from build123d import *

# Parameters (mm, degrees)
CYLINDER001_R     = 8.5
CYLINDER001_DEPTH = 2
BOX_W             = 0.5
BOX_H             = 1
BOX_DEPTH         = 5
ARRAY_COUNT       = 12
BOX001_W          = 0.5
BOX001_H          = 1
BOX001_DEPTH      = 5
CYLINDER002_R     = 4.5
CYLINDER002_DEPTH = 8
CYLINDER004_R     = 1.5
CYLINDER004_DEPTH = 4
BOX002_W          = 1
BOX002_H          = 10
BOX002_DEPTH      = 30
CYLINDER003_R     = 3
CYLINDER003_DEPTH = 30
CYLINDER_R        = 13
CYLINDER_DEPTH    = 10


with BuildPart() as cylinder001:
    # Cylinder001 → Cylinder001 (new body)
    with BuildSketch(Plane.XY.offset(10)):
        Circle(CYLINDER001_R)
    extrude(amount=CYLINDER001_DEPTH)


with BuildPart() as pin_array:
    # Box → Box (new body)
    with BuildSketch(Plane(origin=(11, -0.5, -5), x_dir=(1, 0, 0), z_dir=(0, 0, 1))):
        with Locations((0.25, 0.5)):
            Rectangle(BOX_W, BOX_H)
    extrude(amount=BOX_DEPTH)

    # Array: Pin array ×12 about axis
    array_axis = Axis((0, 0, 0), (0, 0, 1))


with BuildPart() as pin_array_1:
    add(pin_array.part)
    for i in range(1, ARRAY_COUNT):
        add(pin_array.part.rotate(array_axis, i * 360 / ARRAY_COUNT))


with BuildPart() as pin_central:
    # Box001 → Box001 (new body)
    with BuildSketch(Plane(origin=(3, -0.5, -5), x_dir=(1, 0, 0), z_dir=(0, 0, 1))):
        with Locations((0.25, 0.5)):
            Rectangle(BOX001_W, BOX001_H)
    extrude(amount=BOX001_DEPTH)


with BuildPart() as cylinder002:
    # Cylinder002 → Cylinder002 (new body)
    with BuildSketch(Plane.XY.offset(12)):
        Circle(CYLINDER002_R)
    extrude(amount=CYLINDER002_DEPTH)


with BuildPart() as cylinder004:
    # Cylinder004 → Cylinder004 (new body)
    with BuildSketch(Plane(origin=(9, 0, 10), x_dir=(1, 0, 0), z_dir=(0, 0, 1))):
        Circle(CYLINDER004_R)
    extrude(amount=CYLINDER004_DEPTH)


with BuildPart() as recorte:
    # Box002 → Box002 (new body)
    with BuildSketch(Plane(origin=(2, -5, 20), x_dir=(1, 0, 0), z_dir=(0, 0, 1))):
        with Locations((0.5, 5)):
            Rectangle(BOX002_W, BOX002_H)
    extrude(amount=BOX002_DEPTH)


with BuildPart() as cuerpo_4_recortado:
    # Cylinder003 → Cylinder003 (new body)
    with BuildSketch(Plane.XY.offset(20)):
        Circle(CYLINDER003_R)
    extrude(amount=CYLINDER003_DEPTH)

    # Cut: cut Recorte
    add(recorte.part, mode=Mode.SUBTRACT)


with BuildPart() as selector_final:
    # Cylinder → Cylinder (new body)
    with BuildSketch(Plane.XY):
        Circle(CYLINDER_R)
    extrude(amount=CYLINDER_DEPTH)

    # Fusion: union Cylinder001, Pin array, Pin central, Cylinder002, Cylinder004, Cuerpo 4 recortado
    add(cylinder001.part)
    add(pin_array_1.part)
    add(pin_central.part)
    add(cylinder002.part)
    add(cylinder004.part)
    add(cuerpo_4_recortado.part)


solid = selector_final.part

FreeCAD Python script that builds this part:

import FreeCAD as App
import Part
import Sketcher

V = App.Vector
Q = App.Units.Quantity


def add_polygon(sketch, points):
    """Adds a closed chain of lines whose ends are joined by coincident constraints."""
    first, n = sketch.GeometryCount, len(points)
    for a, b in zip(points, points[1:] + points[:1]):
        sketch.addGeometry(Part.LineSegment(App.Vector(*a, 0), App.Vector(*b, 0)), False)
    for i in range(n):
        sketch.addConstraint(Sketcher.Constraint("Coincident", first + i, 2, first + (i + 1) % n, 1))

doc = App.newDocument("Part")
body = doc.addObject("PartDesign::Body", "Body")

sketch1 = body.newObject("Sketcher::SketchObject", "Sketch")
sketch1.AttachmentSupport = (doc.getObject("XY_Plane"), [""])
sketch1.MapMode = "FlatFace"
sketch1.AttachmentOffset = App.Placement(V(0, 0, 10), App.Rotation())
sketch1.addGeometry(Part.Circle(V(0, 0, 0), V(0, 0, 1), 8), False)
sketch1.addConstraint([
    Sketcher.Constraint("Coincident", 0, 3, -1, 1),
    Sketcher.Constraint("Diameter", 0, Q("17 mm")),
])
pad1 = body.newObject("PartDesign::Pad", "Pad")
pad1.Profile = sketch1
pad1.Length = 2
body2 = doc.addObject("PartDesign::Body", "Body001")

sketch2 = body2.newObject("Sketcher::SketchObject", "Sketch001")
sketch2.AttachmentSupport = (doc.getObject("XY_Plane001"), [""])
sketch2.MapMode = "FlatFace"
sketch2.AttachmentOffset = App.Placement(V(0, 0, -5), App.Rotation())
add_polygon(sketch2, [(11, 0.5), (11, -0.5), (11.5, -0.5), (11.5, 0.5)])
sketch2.addConstraint([
    Sketcher.Constraint("Vertical", 0),
    Sketcher.Constraint("Horizontal", 1),
    Sketcher.Constraint("Vertical", 2),
    Sketcher.Constraint("Horizontal", 3),
    Sketcher.Constraint("DistanceY", 0, 2, 0, 1, Q("1 mm")),
    Sketcher.Constraint("DistanceX", 1, 1, 1, 2, Q("0.5 mm")),
    Sketcher.Constraint("DistanceX", -1, 1, 0, 2, Q("11 mm")),
    Sketcher.Constraint("DistanceY", 0, 2, -1, 1, Q("0.5 mm")),
])
pad2 = body2.newObject("PartDesign::Pad", "Pad001")
pad2.Profile = sketch2
pad2.Length = 5
body3 = doc.addObject("PartDesign::Body", "Body002")
body3.AllowCompound = True
doc.recompute()

body3.BaseFeature = body2
doc.recompute()

body4 = doc.addObject("PartDesign::Body", "Body003")
body4.BaseFeature = body2
body4.Placement = App.Placement(V(0, 0, 0), App.Rotation(V(0, 0, 1), 30))
boolean = body3.newObject("PartDesign::Boolean", "Boolean")
boolean.Type = "Fuse"
boolean.addObjects([body4])
doc.recompute()

body5 = doc.addObject("PartDesign::Body", "Body004")
body5.BaseFeature = body2
body5.Placement = App.Placement(V(0, 0, 0), App.Rotation(V(0, 0, 1), 60))
boolean2 = body3.newObject("PartDesign::Boolean", "Boolean001")
boolean2.Type = "Fuse"
boolean2.addObjects([body5])
doc.recompute()

body6 = doc.addObject("PartDesign::Body", "Body005")
body6.BaseFeature = body2
body6.Placement = App.Placement(V(0, 0, 0), App.Rotation(V(0, 0, 1), 90))
boolean3 = body3.newObject("PartDesign::Boolean", "Boolean002")
boolean3.Type = "Fuse"
boolean3.addObjects([body6])
doc.recompute()

body7 = doc.addObject("PartDesign::Body", "Body006")
body7.BaseFeature = body2
body7.Placement = App.Placement(V(0, 0, 0), App.Rotation(V(0, 0, 1), 120))
boolean4 = body3.newObject("PartDesign::Boolean", "Boolean003")
boolean4.Type = "Fuse"
boolean4.addObjects([body7])
doc.recompute()

body8 = doc.addObject("PartDesign::Body", "Body007")
body8.BaseFeature = body2
body8.Placement = App.Placement(V(0, 0, 0), App.Rotation(V(0, 0, 1), 150))
boolean5 = body3.newObject("PartDesign::Boolean", "Boolean004")
boolean5.Type = "Fuse"
boolean5.addObjects([body8])
doc.recompute()

body9 = doc.addObject("PartDesign::Body", "Body008")
body9.BaseFeature = body2
body9.Placement = App.Placement(V(0, 0, 0), App.Rotation(V(0, 0, 1), 180))
boolean6 = body3.newObject("PartDesign::Boolean", "Boolean005")
boolean6.Type = "Fuse"
boolean6.addObjects([body9])
doc.recompute()

body10 = doc.addObject("PartDesign::Body", "Body009")
body10.BaseFeature = body2
body10.Placement = App.Placement(V(0, 0, 0), App.Rotation(V(0, 0, 1), 210))
boolean7 = body3.newObject("PartDesign::Boolean", "Boolean006")
boolean7.Type = "Fuse"
boolean7.addObjects([body10])
doc.recompute()

body11 = doc.addObject("PartDesign::Body", "Body010")
body11.BaseFeature = body2
body11.Placement = App.Placement(V(0, 0, 0), App.Rotation(V(0, 0, 1), 240))
boolean8 = body3.newObject("PartDesign::Boolean", "Boolean007")
boolean8.Type = "Fuse"
boolean8.addObjects([body11])
doc.recompute()

body12 = doc.addObject("PartDesign::Body", "Body011")
body12.BaseFeature = body2
body12.Placement = App.Placement(V(0, 0, 0), App.Rotation(V(0, 0, 1), 270))
boolean9 = body3.newObject("PartDesign::Boolean", "Boolean008")
boolean9.Type = "Fuse"
boolean9.addObjects([body12])
doc.recompute()

body13 = doc.addObject("PartDesign::Body", "Body012")
body13.BaseFeature = body2
body13.Placement = App.Placement(V(0, 0, 0), App.Rotation(V(0, 0, 1), 300))
boolean10 = body3.newObject("PartDesign::Boolean", "Boolean009")
boolean10.Type = "Fuse"
boolean10.addObjects([body13])
doc.recompute()

body2.Placement = App.Placement(V(0, 0, 0), App.Rotation(V(0, 0, 1), 330))
boolean11 = body3.newObject("PartDesign::Boolean", "Boolean010")
boolean11.Type = "Fuse"
boolean11.addObjects([body2])
body14 = doc.addObject("PartDesign::Body", "Body013")

sketch3 = body14.newObject("Sketcher::SketchObject", "Sketch002")
sketch3.AttachmentSupport = (doc.getObject("XY_Plane013"), [""])
sketch3.MapMode = "FlatFace"
sketch3.AttachmentOffset = App.Placement(V(0, 0, -5), App.Rotation())
add_polygon(sketch3, [(3, 0.5), (3, -0.5), (3.5, -0.5), (3.5, 0.5)])
sketch3.addConstraint([
    Sketcher.Constraint("Vertical", 0),
    Sketcher.Constraint("Horizontal", 1),
    Sketcher.Constraint("Vertical", 2),
    Sketcher.Constraint("Horizontal", 3),
    Sketcher.Constraint("DistanceY", 0, 2, 0, 1, Q("1 mm")),
    Sketcher.Constraint("DistanceX", 1, 1, 1, 2, Q("0.5 mm")),
    Sketcher.Constraint("DistanceX", -1, 1, 0, 2, Q("3 mm")),
    Sketcher.Constraint("DistanceY", 0, 2, -1, 1, Q("0.5 mm")),
])
pad3 = body14.newObject("PartDesign::Pad", "Pad002")
pad3.Profile = sketch3
pad3.Length = 5
body15 = doc.addObject("PartDesign::Body", "Body014")

sketch4 = body15.newObject("Sketcher::SketchObject", "Sketch003")
sketch4.AttachmentSupport = (doc.getObject("XY_Plane014"), [""])
sketch4.MapMode = "FlatFace"
sketch4.AttachmentOffset = App.Placement(V(0, 0, 12), App.Rotation())
sketch4.addGeometry(Part.Circle(V(0, 0, 0), V(0, 0, 1), 4.5), False)
sketch4.addConstraint([
    Sketcher.Constraint("Coincident", 0, 3, -1, 1),
    Sketcher.Constraint("Diameter", 0, Q("9 mm")),
])
pad4 = body15.newObject("PartDesign::Pad", "Pad003")
pad4.Profile = sketch4
pad4.Length = 8
body16 = doc.addObject("PartDesign::Body", "Body015")

sketch5 = body16.newObject("Sketcher::SketchObject", "Sketch004")
sketch5.AttachmentSupport = (doc.getObject("XY_Plane015"), [""])
sketch5.MapMode = "FlatFace"
sketch5.AttachmentOffset = App.Placement(V(0, 0, 10), App.Rotation())
sketch5.addGeometry(Part.Circle(V(9, 0, 0), V(0, 0, 1), 1.5), False)
sketch5.addConstraint([
    Sketcher.Constraint("PointOnObject", 0, 3, -1),
    Sketcher.Constraint("Diameter", 0, Q("3 mm")),
    Sketcher.Constraint("DistanceX", -1, 1, 0, 3, Q("9 mm")),
])
pad5 = body16.newObject("PartDesign::Pad", "Pad004")
pad5.Profile = sketch5
pad5.Length = 4
body17 = doc.addObject("PartDesign::Body", "Body016")

sketch6 = body17.newObject("Sketcher::SketchObject", "Sketch005")
sketch6.AttachmentSupport = (doc.getObject("XY_Plane016"), [""])
sketch6.MapMode = "FlatFace"
sketch6.AttachmentOffset = App.Placement(V(0, 0, 20), App.Rotation())
add_polygon(sketch6, [(2, 5), (2, -5), (3, -5), (3, 5)])
sketch6.addConstraint([
    Sketcher.Constraint("Vertical", 0),
    Sketcher.Constraint("Horizontal", 1),
    Sketcher.Constraint("Vertical", 2),
    Sketcher.Constraint("Horizontal", 3),
    Sketcher.Constraint("DistanceX", 1, 1, 1, 2, Q("1 mm")),
    Sketcher.Constraint("DistanceY", 0, 2, 0, 1, Q("10 mm")),
    Sketcher.Constraint("DistanceX", -1, 1, 0, 2, Q("2 mm")),
    Sketcher.Constraint("DistanceY", 0, 2, -1, 1, Q("5 mm")),
])
pad6 = body17.newObject("PartDesign::Pad", "Pad005")
pad6.Profile = sketch6
pad6.Length = 30
body18 = doc.addObject("PartDesign::Body", "Body017")

sketch7 = body18.newObject("Sketcher::SketchObject", "Sketch006")
sketch7.AttachmentSupport = (doc.getObject("XY_Plane017"), [""])
sketch7.MapMode = "FlatFace"
sketch7.AttachmentOffset = App.Placement(V(0, 0, 20), App.Rotation())
sketch7.addGeometry(Part.Circle(V(0, 0, 0), V(0, 0, 1), 3), False)
sketch7.addConstraint([
    Sketcher.Constraint("Coincident", 0, 3, -1, 1),
    Sketcher.Constraint("Diameter", 0, Q("6 mm")),
])
pad7 = body18.newObject("PartDesign::Pad", "Pad006")
pad7.Profile = sketch7
pad7.Length = 30
doc.recompute()

boolean12 = body18.newObject("PartDesign::Boolean", "Boolean011")
boolean12.Type = "Cut"
boolean12.addObjects([body17])
body19 = doc.addObject("PartDesign::Body", "Body018")

sketch8 = body19.newObject("Sketcher::SketchObject", "Sketch007")
sketch8.AttachmentSupport = (doc.getObject("XY_Plane018"), [""])
sketch8.MapMode = "FlatFace"
sketch8.addGeometry(Part.Circle(V(0, 0, 0), V(0, 0, 1), 13), False)
sketch8.addConstraint([
    Sketcher.Constraint("Coincident", 0, 3, -1, 1),
    Sketcher.Constraint("Diameter", 0, Q("26 mm")),
])
pad8 = body19.newObject("PartDesign::Pad", "Pad007")
pad8.Profile = sketch8
pad8.Length = 10
doc.recompute()

boolean13 = body19.newObject("PartDesign::Boolean", "Boolean012")
boolean13.Type = "Fuse"
boolean13.addObjects([body])
doc.recompute()

boolean14 = body19.newObject("PartDesign::Boolean", "Boolean013")
boolean14.Type = "Fuse"
boolean14.addObjects([body3])
doc.recompute()

boolean15 = body19.newObject("PartDesign::Boolean", "Boolean014")
boolean15.Type = "Fuse"
boolean15.addObjects([body14])
doc.recompute()

boolean16 = body19.newObject("PartDesign::Boolean", "Boolean015")
boolean16.Type = "Fuse"
boolean16.addObjects([body15])
doc.recompute()

boolean17 = body19.newObject("PartDesign::Boolean", "Boolean016")
boolean17.Type = "Fuse"
boolean17.addObjects([body16])
doc.recompute()

boolean18 = body19.newObject("PartDesign::Boolean", "Boolean017")
boolean18.Type = "Fuse"
boolean18.addObjects([body18])

doc.recompute()
